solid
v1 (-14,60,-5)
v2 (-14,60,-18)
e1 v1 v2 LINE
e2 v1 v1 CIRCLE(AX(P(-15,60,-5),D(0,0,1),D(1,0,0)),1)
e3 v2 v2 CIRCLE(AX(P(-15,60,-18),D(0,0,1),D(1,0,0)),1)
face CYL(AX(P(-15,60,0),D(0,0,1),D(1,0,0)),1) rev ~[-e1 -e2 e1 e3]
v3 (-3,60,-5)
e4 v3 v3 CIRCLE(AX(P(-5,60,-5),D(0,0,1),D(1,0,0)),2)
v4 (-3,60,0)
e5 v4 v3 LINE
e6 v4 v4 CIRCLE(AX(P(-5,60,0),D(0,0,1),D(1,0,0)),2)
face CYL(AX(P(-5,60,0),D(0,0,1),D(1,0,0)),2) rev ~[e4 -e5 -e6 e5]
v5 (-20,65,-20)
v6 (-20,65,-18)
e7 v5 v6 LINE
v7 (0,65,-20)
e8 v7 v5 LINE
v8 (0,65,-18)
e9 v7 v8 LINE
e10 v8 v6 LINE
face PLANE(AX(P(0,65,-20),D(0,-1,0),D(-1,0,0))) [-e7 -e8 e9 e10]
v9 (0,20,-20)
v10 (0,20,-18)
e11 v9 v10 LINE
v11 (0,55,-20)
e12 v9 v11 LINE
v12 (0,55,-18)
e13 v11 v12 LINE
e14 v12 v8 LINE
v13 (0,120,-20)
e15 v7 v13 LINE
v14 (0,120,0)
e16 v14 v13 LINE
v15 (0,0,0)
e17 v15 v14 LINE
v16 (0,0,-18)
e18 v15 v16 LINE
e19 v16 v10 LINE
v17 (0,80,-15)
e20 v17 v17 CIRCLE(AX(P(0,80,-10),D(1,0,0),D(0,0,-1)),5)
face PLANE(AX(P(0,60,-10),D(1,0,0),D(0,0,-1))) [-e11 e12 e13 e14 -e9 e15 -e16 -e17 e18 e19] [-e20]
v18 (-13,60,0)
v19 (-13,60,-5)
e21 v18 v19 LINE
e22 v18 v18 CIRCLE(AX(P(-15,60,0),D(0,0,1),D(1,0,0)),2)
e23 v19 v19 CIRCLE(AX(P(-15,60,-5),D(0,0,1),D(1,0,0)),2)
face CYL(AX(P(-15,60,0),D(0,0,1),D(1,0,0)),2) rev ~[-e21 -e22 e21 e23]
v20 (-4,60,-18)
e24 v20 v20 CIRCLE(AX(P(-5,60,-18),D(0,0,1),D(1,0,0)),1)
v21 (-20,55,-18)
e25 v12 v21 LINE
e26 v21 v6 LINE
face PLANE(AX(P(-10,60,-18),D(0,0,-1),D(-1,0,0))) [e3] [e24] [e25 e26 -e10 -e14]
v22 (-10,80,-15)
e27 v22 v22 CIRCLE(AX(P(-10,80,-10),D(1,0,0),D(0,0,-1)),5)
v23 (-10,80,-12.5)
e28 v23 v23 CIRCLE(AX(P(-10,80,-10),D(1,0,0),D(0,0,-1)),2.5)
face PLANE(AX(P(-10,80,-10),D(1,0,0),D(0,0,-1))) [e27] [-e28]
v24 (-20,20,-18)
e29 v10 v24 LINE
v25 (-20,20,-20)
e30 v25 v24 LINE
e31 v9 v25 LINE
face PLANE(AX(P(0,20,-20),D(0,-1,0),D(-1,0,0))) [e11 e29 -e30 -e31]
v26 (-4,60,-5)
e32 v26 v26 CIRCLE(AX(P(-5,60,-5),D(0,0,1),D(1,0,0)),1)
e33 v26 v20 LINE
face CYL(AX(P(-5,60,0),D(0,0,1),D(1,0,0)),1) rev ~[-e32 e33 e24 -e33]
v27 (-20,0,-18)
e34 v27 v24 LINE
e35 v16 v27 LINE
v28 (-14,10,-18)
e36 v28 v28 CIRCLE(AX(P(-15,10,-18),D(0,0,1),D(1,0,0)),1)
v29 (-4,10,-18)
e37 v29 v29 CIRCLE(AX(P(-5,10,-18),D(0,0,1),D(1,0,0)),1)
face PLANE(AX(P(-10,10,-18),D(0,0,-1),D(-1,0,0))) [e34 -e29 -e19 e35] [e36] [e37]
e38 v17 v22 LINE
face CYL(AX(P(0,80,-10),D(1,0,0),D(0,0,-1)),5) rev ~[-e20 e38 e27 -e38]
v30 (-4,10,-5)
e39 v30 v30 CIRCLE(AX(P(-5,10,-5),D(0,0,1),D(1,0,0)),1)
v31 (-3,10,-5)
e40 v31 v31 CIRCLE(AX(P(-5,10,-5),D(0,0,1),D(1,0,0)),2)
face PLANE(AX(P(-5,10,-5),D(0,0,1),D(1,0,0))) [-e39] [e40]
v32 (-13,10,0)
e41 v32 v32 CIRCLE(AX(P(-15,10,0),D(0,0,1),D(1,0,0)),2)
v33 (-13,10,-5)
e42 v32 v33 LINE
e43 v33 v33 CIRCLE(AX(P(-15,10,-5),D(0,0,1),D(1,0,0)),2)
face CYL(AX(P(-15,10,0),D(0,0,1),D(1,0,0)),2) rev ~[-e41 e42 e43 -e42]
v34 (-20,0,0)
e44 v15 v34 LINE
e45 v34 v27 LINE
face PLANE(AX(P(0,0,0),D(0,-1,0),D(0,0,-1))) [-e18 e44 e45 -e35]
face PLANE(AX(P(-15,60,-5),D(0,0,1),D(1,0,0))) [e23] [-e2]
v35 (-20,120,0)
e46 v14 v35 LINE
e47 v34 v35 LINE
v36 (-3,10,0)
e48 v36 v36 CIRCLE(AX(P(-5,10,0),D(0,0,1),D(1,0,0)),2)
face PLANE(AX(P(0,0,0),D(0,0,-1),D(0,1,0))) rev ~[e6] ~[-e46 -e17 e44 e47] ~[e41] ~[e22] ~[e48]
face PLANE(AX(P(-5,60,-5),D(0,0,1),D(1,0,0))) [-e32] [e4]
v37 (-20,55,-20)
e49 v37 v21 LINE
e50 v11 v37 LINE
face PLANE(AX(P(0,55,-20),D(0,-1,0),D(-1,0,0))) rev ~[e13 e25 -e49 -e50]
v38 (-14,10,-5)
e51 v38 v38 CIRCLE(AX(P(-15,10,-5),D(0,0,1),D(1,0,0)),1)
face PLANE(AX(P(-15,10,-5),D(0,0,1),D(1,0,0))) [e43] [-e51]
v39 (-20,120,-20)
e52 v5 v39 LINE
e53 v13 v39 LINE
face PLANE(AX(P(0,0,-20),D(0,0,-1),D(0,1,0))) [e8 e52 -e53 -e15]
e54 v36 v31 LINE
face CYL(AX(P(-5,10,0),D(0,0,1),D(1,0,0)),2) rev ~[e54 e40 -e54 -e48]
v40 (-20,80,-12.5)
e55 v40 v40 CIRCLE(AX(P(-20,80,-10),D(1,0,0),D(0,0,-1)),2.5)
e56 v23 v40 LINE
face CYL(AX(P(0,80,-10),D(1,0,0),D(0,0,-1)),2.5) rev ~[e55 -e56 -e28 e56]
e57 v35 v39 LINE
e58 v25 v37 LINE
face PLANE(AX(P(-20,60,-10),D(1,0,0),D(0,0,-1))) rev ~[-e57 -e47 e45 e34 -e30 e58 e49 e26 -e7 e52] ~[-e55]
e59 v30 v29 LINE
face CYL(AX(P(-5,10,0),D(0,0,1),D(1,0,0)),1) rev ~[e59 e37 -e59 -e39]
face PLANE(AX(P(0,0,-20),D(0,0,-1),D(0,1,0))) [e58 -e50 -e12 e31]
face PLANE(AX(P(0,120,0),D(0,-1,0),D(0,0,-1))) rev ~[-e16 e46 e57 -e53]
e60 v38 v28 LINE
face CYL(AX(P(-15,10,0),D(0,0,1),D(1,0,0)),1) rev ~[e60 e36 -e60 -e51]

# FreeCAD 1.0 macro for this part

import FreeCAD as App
import Part
import Sketcher
Q = App.Units.Quantity

doc = App.newDocument("Part")
body = doc.addObject("PartDesign::Body", "Body")

sketch1 = body.newObject("Sketcher::SketchObject", "Sketch")
sketch1.AttachmentSupport = (doc.getObject("YZ_Plane"), [""])
sketch1.MapMode = "FlatFace"
sketch1.addGeometry(Part.LineSegment(App.Vector(120, 0, 0), App.Vector(0, 0, 0)), False)
sketch1.addGeometry(Part.LineSegment(App.Vector(0, 0, 0), App.Vector(0, -20, 0)), False)
sketch1.addGeometry(Part.LineSegment(App.Vector(0, -20, 0), App.Vector(120, -20, 0)), False)
sketch1.addGeometry(Part.LineSegment(App.Vector(120, -20, 0), App.Vector(120, 0, 0)), False)
sketch1.addGeometry(Part.Circle(App.Vector(80, -10, 0), App.Vector(0, 0, 1), 2.5), False)
sketch1.addConstraint(Sketcher.Constraint("Coincident", 0, 2, 1, 1))
sketch1.addConstraint(Sketcher.Constraint("Coincident", 1, 2, 2, 1))
sketch1.addConstraint(Sketcher.Constraint("Coincident", 2, 2, 3, 1))
sketch1.addConstraint(Sketcher.Constraint("Coincident", 3, 2, 0, 1))
sketch1.addConstraint(Sketcher.Constraint("Horizontal", 0))
sketch1.addConstraint(Sketcher.Constraint("Vertical", 1))
sketch1.addConstraint(Sketcher.Constraint("Horizontal", 2))
sketch1.addConstraint(Sketcher.Constraint("Vertical", 3))
sketch1.addConstraint(Sketcher.Constraint("Coincident", 0, 2, -1, 1))
sketch1.addConstraint(Sketcher.Constraint("Diameter", 4, Q("5 mm")))
sketch1.addConstraint(Sketcher.Constraint("DistanceX", 0, 2, 0, 1, Q("120 mm")))
sketch1.addConstraint(Sketcher.Constraint("DistanceY", 1, 2, 1, 1, Q("20 mm")))
sketch1.addConstraint(Sketcher.Constraint("DistanceX", -1, 1, 4, 3, Q("80 mm")))
sketch1.addConstraint(Sketcher.Constraint("DistanceY", 4, 3, -1, 1, Q("10 mm")))
pad1 = body.newObject("PartDesign::Pad", "Pad")
pad1.Profile = sketch1
pad1.Length = 20
pad1.Reversed = True

sketch2 = body.newObject("Sketcher::SketchObject", "Sketch001")
sketch2.AttachmentSupport = (doc.getObject("YZ_Plane"), [""])
sketch2.MapMode = "FlatFace"
sketch2.addGeometry(Part.Circle(App.Vector(80, -10, 0), App.Vector(0, 0, 1), 5), False)
sketch2.addConstraint(Sketcher.Constraint("Diameter", 0, Q("10 mm")))
sketch2.addConstraint(Sketcher.Constraint("DistanceX", -1, 1, 0, 3, Q("80 mm")))
sketch2.addConstraint(Sketcher.Constraint("DistanceY", 0, 3, -1, 1, Q("10 mm")))
pocket1 = body.newObject("PartDesign::Pocket", "Pocket")
pocket1.Profile = sketch2
pocket1.Length = 10

sketch3 = body.newObject("Sketcher::SketchObject", "Sketch002")
sketch3.AttachmentSupport = (doc.getObject("XY_Plane"), [""])
sketch3.MapMode = "FlatFace"
sketch3.addGeometry(Part.Circle(App.Vector(-15, 10, 0), App.Vector(0, 0, 1), 1), False)
sketch3.addGeometry(Part.Circle(App.Vector(-5, 10, 0), App.Vector(0, 0, 1), 1), False)
sketch3.addConstraint(Sketcher.Constraint("Equal", 0, 1))
sketch3.addConstraint(Sketcher.Constraint("Horizontal", 0, 3, 1, 3))
sketch3.addConstraint(Sketcher.Constraint("Diameter", 0, Q("2 mm")))
sketch3.addConstraint(Sketcher.Constraint("DistanceX", 0, 3, -1, 1, Q("15 mm")))
sketch3.addConstraint(Sketcher.Constraint("DistanceY", -1, 1, 0, 3, Q("10 mm")))
sketch3.addConstraint(Sketcher.Constraint("DistanceX", 1, 3, -1, 1, Q("5 mm")))
pocket2 = body.newObject("PartDesign::Pocket", "Pocket001")
pocket2.Profile = sketch3
pocket2.Type = "ThroughAll"

sketch4 = body.newObject("Sketcher::SketchObject", "Sketch003")
sketch4.AttachmentSupport = (doc.getObject("XY_Plane"), [""])
sketch4.MapMode = "FlatFace"
sketch4.addGeometry(Part.Circle(App.Vector(-15, 10, 0), App.Vector(0, 0, 1), 2), False)
sketch4.addGeometry(Part.Circle(App.Vector(-5, 10, 0), App.Vector(0, 0, 1), 2), False)
sketch4.addGeometry(Part.Circle(App.Vector(-15, 60, 0), App.Vector(0, 0, 1), 2), False)
sketch4.addGeometry(Part.Circle(App.Vector(-5, 60, 0), App.Vector(0, 0, 1), 2), False)
sketch4.addConstraint(Sketcher.Constraint("Equal", 0, 1))
sketch4.addConstraint(Sketcher.Constraint("Equal", 1, 2))
sketch4.addConstraint(Sketcher.Constraint("Equal", 2, 3))
sketch4.addConstraint(Sketcher.Constraint("Horizontal", 0, 3, 1, 3))
sketch4.addConstraint(Sketcher.Constraint("Horizontal", 2, 3, 3, 3))
sketch4.addConstraint(Sketcher.Constraint("Vertical", 0, 3, 2, 3))
sketch4.addConstraint(Sketcher.Constraint("Vertical", 1, 3, 3, 3))
sketch4.addConstraint(Sketcher.Constraint("Diameter", 0, Q("4 mm")))
sketch4.addConstraint(Sketcher.Constraint("DistanceX", 0, 3, -1, 1, Q("15 mm")))
sketch4.addConstraint(Sketcher.Constraint("DistanceY", -1, 1, 0, 3, Q("10 mm")))
sketch4.addConstraint(Sketcher.Constraint("DistanceX", 1, 3, -1, 1, Q("5 mm")))
sketch4.addConstraint(Sketcher.Constraint("DistanceY", -1, 1, 2, 3, Q("60 mm")))
pocket3 = body.newObject("PartDesign::Pocket", "Pocket002")
pocket3.Profile = sketch4
pocket3.Length = 5

sketch5 = body.newObject("Sketcher::SketchObject", "Sketch004")
sketch5.AttachmentSupport = (doc.getObject("XY_Plane"), [""])
sketch5.MapMode = "FlatFace"
sketch5.addGeometry(Part.Circle(App.Vector(-15, 60, 0), App.Vector(0, 0, 1), 1), False)
sketch5.addGeometry(Part.Circle(App.Vector(-5, 60, 0), App.Vector(0, 0, 1), 1), False)
sketch5.addConstraint(Sketcher.Constraint("Equal", 0, 1))
sketch5.addConstraint(Sketcher.Constraint("Horizontal", 0, 3, 1, 3))
sketch5.addConstraint(Sketcher.Constraint("Diameter", 0, Q("2 mm")))
sketch5.addConstraint(Sketcher.Constraint("DistanceX", 0, 3, -1, 1, Q("15 mm")))
sketch5.addConstraint(Sketcher.Constraint("DistanceY", -1, 1, 0, 3, Q("60 mm")))
sketch5.addConstraint(Sketcher.Constraint("DistanceX", 1, 3, -1, 1, Q("5 mm")))
pocket4 = body.newObject("PartDesign::Pocket", "Pocket003")
pocket4.Profile = sketch5
pocket4.Type = "ThroughAll"

sketch6 = body.newObject("Sketcher::SketchObject", "Sketch005")
sketch6.AttachmentSupport = (doc.getObject("XY_Plane"), [""])
sketch6.MapMode = "FlatFace"
sketch6.AttachmentOffset = App.Placement(App.Vector(0, 0, -20), App.Rotation())
sketch6.addGeometry(Part.LineSegment(App.Vector(0, 65, 0), App.Vector(0, 55, 0)), False)
sketch6.addGeometry(Part.LineSegment(App.Vector(0, 55, 0), App.Vector(-20, 55, 0)), False)
sketch6.addGeometry(Part.LineSegment(App.Vector(-20, 55, 0), App.Vector(-20, 65, 0)), False)
sketch6.addGeometry(Part.LineSegment(App.Vector(-20, 65, 0), App.Vector(0, 65, 0)), False)
sketch6.addGeometry(Part.LineSegment(App.Vector(0, 20, 0), App.Vector(0, 0, 0)), False)
sketch6.addGeometry(Part.LineSegment(App.Vector(0, 0, 0), App.Vector(-20, 0, 0)), False)
sketch6.addGeometry(Part.LineSegment(App.Vector(-20, 0, 0), App.Vector(-20, 20, 0)), False)
sketch6.addGeometry(Part.LineSegment(App.Vector(-20, 20, 0), App.Vector(0, 20, 0)), False)
sketch6.addConstraint(Sketcher.Constraint("Coincident", 0, 2, 1, 1))
sketch6.addConstraint(Sketcher.Constraint("Coincident", 1, 2, 2, 1))
sketch6.addConstraint(Sketcher.Constraint("Coincident", 2, 2, 3, 1))
sketch6.addConstraint(Sketcher.Constraint("Coincident", 3, 2, 0, 1))
sketch6.addConstraint(Sketcher.Constraint("Coincident", 4, 2, 5, 1))
sketch6.addConstraint(Sketcher.Constraint("Coincident", 5, 2, 6, 1))
sketch6.addConstraint(Sketcher.Constraint("Coincident", 6, 2, 7, 1))
sketch6.addConstraint(Sketcher.Constraint("Coincident", 7, 2, 4, 1))
sketch6.addConstraint(Sketcher.Constraint("Vertical", 0))
sketch6.addConstraint(Sketcher.Constraint("Horizontal", 1))
sketch6.addConstraint(Sketcher.Constraint("Vertical", 2))
sketch6.addConstraint(Sketcher.Constraint("Horizontal", 3))
sketch6.addConstraint(Sketcher.Constraint("Vertical", 4))
sketch6.addConstraint(Sketcher.Constraint("Horizontal", 5))
sketch6.addConstraint(Sketcher.Constraint("Vertical", 6))
sketch6.addConstraint(Sketcher.Constraint("Horizontal", 7))
sketch6.addConstraint(Sketcher.Constraint("Coincident", 4, 2, -1, 1))
sketch6.addConstraint(Sketcher.Constraint("PointOnObject", 0, 2, -2))
sketch6.addConstraint(Sketcher.Constraint("Vertical", 2, 2, 5, 2))
sketch6.addConstraint(Sketcher.Constraint("Equal", 7, 4))
sketch6.addConstraint(Sketcher.Constraint("DistanceX", 1, 2, 1, 1, Q("20 mm")))
sketch6.addConstraint(Sketcher.Constraint("DistanceY", 0, 2, 0, 1, Q("10 mm")))
sketch6.addConstraint(Sketcher.Constraint("DistanceY", -1, 1, 0, 2, Q("55 mm")))
pocket5 = body.newObject("PartDesign::Pocket", "Pocket004")
pocket5.Profile = sketch6
pocket5.Length = 2
pocket5.Reversed = True

doc.recompute()
